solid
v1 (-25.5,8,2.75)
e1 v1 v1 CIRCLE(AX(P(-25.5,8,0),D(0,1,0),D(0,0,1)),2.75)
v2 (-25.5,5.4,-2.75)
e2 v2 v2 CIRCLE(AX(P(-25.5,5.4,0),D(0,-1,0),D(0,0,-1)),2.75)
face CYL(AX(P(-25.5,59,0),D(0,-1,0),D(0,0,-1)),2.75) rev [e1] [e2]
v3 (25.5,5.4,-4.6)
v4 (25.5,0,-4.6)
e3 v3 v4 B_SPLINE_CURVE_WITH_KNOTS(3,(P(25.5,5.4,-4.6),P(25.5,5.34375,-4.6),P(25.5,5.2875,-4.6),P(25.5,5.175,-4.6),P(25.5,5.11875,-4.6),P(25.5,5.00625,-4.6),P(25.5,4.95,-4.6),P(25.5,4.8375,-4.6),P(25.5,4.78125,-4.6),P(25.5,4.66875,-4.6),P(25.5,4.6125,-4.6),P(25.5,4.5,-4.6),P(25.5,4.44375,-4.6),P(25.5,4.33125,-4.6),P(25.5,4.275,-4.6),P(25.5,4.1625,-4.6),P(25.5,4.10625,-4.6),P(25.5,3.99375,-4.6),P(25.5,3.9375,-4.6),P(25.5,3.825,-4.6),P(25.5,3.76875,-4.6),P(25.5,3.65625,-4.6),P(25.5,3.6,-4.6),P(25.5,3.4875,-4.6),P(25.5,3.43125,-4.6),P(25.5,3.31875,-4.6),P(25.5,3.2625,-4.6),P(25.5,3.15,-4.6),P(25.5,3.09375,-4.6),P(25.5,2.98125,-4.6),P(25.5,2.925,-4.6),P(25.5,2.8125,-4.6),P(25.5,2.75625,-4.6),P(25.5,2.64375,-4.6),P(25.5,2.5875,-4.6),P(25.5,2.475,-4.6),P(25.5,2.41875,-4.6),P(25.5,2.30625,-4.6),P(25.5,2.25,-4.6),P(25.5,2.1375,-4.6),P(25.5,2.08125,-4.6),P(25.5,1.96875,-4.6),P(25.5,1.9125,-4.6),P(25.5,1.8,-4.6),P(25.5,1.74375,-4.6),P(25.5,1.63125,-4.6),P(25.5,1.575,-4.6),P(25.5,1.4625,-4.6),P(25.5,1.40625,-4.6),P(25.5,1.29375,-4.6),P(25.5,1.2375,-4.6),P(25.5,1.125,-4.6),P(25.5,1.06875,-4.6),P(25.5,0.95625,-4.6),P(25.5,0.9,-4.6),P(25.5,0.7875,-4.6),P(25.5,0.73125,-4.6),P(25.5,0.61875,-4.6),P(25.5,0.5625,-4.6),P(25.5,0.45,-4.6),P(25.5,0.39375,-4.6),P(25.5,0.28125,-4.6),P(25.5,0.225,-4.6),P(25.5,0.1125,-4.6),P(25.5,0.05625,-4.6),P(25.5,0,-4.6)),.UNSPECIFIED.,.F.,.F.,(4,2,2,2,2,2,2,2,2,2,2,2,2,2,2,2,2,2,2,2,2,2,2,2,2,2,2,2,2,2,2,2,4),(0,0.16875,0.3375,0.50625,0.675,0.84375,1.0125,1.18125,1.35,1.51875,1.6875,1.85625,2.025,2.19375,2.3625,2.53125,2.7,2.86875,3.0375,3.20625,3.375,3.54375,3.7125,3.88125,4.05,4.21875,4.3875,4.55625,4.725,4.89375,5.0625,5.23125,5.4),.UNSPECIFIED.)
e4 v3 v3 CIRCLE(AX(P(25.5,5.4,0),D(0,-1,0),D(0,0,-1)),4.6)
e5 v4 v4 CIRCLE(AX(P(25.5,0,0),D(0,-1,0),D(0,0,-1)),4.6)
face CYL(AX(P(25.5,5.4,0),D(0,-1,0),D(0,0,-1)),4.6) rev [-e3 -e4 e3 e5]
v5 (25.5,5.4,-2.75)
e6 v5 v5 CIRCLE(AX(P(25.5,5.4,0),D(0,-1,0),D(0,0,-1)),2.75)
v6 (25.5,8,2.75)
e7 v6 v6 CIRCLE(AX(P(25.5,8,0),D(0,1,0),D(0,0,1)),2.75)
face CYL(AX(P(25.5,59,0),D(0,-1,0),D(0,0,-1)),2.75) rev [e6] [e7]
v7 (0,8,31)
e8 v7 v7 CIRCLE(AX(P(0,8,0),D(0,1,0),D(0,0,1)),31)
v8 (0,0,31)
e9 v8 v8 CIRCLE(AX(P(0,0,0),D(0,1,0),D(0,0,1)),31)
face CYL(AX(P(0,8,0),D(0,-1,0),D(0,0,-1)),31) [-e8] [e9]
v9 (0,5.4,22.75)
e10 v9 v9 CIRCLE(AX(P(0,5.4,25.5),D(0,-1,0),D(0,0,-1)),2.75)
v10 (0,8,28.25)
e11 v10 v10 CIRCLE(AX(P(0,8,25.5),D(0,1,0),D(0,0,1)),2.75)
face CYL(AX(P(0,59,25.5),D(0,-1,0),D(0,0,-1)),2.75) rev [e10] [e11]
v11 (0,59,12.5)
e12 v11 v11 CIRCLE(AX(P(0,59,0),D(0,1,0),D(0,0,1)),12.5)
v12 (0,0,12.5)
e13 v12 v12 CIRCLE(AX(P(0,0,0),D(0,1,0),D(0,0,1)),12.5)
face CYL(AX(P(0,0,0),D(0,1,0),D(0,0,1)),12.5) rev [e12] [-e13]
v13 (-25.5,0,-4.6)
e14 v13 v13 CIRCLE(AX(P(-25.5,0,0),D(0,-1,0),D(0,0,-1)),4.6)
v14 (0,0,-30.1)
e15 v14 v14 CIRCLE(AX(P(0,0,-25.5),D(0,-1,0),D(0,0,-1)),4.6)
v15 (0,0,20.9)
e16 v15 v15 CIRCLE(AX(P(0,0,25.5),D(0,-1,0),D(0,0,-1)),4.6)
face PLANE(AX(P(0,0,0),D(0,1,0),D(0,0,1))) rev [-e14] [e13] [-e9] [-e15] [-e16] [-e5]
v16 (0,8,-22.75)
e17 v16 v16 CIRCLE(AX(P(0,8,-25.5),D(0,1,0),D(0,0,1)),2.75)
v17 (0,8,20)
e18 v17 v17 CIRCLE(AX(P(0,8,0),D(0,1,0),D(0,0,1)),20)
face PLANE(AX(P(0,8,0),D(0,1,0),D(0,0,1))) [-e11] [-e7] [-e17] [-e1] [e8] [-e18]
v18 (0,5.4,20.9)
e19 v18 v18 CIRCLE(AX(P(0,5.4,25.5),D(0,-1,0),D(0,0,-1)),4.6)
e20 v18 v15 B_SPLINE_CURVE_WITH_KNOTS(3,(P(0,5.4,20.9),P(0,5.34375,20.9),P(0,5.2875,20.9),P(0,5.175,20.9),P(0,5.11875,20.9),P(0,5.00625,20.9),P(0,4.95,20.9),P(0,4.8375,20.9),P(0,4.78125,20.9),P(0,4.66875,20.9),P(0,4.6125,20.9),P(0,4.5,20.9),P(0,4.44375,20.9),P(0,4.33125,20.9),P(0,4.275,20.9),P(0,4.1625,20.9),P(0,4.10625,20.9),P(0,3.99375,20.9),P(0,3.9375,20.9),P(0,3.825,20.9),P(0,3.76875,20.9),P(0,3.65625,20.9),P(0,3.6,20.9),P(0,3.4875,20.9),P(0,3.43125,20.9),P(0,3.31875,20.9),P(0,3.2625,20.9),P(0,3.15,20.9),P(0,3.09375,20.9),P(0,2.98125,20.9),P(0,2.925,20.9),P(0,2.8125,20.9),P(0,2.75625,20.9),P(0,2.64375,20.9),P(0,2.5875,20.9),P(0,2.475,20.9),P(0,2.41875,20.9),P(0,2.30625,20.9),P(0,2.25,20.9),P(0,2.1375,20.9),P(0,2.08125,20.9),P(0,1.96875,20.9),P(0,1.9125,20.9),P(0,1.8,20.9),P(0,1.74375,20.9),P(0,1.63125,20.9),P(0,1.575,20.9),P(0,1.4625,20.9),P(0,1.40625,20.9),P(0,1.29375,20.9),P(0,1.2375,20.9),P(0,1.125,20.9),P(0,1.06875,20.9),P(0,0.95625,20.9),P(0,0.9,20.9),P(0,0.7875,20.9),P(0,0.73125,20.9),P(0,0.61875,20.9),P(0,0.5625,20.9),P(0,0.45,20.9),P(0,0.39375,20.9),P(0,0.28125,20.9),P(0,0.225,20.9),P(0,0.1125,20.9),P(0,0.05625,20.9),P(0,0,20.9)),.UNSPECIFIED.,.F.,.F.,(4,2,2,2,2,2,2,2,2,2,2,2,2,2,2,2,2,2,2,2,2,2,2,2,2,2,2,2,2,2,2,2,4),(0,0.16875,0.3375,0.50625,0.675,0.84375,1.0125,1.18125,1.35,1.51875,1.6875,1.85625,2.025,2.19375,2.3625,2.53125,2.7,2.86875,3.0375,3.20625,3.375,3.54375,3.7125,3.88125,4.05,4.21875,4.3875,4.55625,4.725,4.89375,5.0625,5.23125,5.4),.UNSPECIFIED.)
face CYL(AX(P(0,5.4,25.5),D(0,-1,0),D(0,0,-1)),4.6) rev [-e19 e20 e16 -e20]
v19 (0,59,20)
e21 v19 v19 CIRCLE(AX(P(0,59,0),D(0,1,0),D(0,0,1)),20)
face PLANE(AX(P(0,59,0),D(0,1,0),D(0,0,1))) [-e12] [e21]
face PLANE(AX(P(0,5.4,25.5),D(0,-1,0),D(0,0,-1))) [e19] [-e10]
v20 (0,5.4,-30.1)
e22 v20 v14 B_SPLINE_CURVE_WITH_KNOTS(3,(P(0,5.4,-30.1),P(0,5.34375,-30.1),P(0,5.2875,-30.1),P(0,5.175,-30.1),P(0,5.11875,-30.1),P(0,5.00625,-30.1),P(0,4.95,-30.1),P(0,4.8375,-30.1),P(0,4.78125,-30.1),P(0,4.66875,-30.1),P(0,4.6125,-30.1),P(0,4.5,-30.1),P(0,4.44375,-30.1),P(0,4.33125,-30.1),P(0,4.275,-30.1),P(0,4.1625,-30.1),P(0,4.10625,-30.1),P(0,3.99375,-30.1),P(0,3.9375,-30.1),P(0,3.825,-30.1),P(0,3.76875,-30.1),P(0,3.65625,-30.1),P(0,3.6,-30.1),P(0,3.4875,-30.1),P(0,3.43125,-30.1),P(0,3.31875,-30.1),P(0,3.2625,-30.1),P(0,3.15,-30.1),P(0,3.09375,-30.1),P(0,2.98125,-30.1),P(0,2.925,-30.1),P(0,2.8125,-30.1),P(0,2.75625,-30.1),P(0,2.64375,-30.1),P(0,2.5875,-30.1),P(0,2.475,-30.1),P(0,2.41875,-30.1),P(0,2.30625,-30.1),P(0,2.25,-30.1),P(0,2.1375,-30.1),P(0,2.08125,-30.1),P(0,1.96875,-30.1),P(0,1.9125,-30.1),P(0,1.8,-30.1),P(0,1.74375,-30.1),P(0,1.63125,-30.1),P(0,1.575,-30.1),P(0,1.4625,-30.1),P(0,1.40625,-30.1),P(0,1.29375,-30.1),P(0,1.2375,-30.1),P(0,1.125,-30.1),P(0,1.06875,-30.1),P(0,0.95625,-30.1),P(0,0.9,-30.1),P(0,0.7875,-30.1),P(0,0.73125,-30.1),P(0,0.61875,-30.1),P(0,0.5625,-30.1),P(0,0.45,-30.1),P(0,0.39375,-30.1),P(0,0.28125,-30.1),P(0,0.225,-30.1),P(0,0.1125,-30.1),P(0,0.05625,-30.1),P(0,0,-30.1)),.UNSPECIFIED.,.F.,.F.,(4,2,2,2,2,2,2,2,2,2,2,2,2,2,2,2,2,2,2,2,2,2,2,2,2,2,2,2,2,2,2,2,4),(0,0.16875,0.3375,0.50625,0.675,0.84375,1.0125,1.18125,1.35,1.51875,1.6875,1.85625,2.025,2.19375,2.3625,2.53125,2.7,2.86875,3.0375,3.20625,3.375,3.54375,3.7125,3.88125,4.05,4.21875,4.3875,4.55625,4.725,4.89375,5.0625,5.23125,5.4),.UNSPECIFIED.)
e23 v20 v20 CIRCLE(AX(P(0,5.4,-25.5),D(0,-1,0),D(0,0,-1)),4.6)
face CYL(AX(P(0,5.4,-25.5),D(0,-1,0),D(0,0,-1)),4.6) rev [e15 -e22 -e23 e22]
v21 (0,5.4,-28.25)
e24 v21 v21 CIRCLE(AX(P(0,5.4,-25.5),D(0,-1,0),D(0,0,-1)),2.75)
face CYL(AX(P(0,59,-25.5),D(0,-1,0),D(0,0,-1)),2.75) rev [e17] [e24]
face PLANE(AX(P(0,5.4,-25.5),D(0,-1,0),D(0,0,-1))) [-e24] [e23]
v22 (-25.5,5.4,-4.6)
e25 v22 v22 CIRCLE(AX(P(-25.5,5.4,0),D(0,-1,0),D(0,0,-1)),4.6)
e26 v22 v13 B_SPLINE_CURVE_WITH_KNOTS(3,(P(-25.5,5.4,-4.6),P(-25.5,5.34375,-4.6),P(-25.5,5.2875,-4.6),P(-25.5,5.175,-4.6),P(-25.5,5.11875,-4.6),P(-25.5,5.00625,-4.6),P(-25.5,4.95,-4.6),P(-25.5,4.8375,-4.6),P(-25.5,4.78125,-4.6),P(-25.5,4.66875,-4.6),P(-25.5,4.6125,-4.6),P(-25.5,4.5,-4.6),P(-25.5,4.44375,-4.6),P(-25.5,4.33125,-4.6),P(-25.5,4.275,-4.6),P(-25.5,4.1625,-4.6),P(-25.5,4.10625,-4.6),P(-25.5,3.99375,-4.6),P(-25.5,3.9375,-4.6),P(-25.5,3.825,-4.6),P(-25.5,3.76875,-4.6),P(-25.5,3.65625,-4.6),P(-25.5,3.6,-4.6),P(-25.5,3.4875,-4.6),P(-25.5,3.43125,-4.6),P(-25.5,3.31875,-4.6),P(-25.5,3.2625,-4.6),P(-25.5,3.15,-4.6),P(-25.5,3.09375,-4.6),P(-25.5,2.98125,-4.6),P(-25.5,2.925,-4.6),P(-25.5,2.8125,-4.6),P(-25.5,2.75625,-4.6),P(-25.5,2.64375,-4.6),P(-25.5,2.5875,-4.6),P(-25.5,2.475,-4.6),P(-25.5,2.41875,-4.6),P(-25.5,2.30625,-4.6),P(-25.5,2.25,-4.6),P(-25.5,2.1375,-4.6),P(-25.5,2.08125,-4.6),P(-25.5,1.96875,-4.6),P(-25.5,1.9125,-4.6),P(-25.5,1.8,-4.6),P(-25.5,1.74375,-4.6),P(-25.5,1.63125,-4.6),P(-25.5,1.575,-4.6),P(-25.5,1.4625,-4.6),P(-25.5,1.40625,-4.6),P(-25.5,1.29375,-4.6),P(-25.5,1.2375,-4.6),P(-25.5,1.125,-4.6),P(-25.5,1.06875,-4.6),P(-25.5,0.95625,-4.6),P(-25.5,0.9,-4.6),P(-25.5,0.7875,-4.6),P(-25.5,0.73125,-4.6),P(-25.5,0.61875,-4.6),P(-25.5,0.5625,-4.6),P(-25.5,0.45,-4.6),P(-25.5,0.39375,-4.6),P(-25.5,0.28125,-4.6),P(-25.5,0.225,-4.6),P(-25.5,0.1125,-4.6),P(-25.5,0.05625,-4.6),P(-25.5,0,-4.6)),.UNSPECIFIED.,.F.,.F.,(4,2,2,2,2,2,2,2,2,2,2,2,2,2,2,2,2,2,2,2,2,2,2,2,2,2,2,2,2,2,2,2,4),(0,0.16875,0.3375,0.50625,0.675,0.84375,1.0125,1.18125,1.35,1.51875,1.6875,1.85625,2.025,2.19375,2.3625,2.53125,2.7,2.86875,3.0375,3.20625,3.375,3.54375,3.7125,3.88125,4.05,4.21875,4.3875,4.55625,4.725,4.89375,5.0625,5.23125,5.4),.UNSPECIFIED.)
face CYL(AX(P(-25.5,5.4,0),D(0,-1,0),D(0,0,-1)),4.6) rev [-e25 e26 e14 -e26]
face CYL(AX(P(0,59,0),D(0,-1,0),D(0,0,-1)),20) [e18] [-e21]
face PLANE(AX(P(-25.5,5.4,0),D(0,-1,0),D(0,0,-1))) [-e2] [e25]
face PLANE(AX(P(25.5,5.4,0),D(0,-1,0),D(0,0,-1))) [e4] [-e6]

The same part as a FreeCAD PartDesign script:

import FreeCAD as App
import Part
import Sketcher
Q = App.Units.Quantity

doc = App.newDocument("Part")
body = doc.addObject("PartDesign::Body", "Body")

sketch1 = doc.addObject("Sketcher::SketchObject", "Sketch")
body.addObject(sketch1)
sketch1.AttachmentSupport = (doc.XZ_Plane, [""])
sketch1.MapMode = "FlatFace"
sketch1.addGeometry(Part.Circle(App.Vector(0, 0, 0), App.Vector(0, 0, 1), 31), False)
sketch1.addConstraint([
    Sketcher.Constraint("Coincident", 0, 3, -1, 1),
    Sketcher.Constraint("Diameter", 0, Q("62 mm")),
])
pad1 = doc.addObject("PartDesign::Pad", "Pad")
body.addObject(pad1)
pad1.Profile = sketch1
pad1.Length = 8
pad1.Reversed = True

sketch2 = doc.addObject("Sketcher::SketchObject", "Sketch001")
body.addObject(sketch2)
sketch2.AttachmentSupport = (doc.XZ_Plane, [""])
sketch2.MapMode = "FlatFace"
sketch2.AttachmentOffset = App.Placement(App.Vector(0, 0, -8), App.Rotation())
sketch2.addGeometry(Part.Circle(App.Vector(0, 0, 0), App.Vector(0, 0, 1), 20), False)
sketch2.addConstraint([
    Sketcher.Constraint("Coincident", 0, 3, -1, 1),
    Sketcher.Constraint("Diameter", 0, Q("40 mm")),
])
pad2 = doc.addObject("PartDesign::Pad", "Pad001")
body.addObject(pad2)
pad2.Profile = sketch2
pad2.Length = 51
pad2.Reversed = True

sketch3 = doc.addObject("Sketcher::SketchObject", "Sketch002")
body.addObject(sketch3)
sketch3.AttachmentSupport = (doc.XZ_Plane, [""])
sketch3.MapMode = "FlatFace"
sketch3.AttachmentOffset = App.Placement(App.Vector(0, 0, -59), App.Rotation())
sketch3.addGeometry(Part.Circle(App.Vector(0, 0, 0), App.Vector(0, 0, 1), 12.5), False)
sketch3.addConstraint([
    Sketcher.Constraint("Coincident", 0, 3, -1, 1),
    Sketcher.Constraint("Diameter", 0, Q("25 mm")),
])
pocket1 = doc.addObject("PartDesign::Pocket", "Pocket")
body.addObject(pocket1)
pocket1.Profile = sketch3
pocket1.Type = "ThroughAll"
pocket1.Reversed = True

sketch4 = doc.addObject("Sketcher::SketchObject", "Sketch003")
body.addObject(sketch4)
sketch4.AttachmentSupport = (doc.XZ_Plane, [""])
sketch4.MapMode = "FlatFace"
sketch4.addGeometry([
    Part.Circle(App.Vector(0, -25.5, 0), App.Vector(0, 0, 1), 4.6),
    Part.Circle(App.Vector(-25.5, 0, 0), App.Vector(0, 0, 1), 4.6),
    Part.Circle(App.Vector(0, 25.5, 0), App.Vector(0, 0, 1), 4.6),
    Part.Circle(App.Vector(25.5, 0, 0), App.Vector(0, 0, 1), 4.6),
], False)
sketch4.addConstraint([
    Sketcher.Constraint("Equal", 0, 1),
    Sketcher.Constraint("Equal", 1, 2),
    Sketcher.Constraint("Equal", 2, 3),
    Sketcher.Constraint("Symmetric", 0, 3, 2, 3, -1, 1),
    Sketcher.Constraint("Symmetric", 1, 3, 3, 3, -1, 1),
    Sketcher.Constraint("PointOnObject", 0, 3, -2),
    Sketcher.Constraint("PointOnObject", 1, 3, -1),
    Sketcher.Constraint("Diameter", 0, Q("9.2 mm")),
    Sketcher.Constraint("DistanceY", 0, 3, 2, 3, Q("51 mm")),
    Sketcher.Constraint("DistanceX", 1, 3, 3, 3, Q("51 mm")),
])
pocket2 = doc.addObject("PartDesign::Pocket", "Pocket001")
body.addObject(pocket2)
pocket2.Profile = sketch4
pocket2.Length = 5.4

sketch5 = doc.addObject("Sketcher::SketchObject", "Sketch004")
body.addObject(sketch5)
sketch5.AttachmentSupport = (doc.XZ_Plane, [""])
sketch5.MapMode = "FlatFace"
sketch5.AttachmentOffset = App.Placement(App.Vector(0, 0, -5.4), App.Rotation())
sketch5.addGeometry([
    Part.Circle(App.Vector(25.5, 0, 0), App.Vector(0, 0, 1), 2.75),
    Part.Circle(App.Vector(0, -25.5, 0), App.Vector(0, 0, 1), 2.75),
    Part.Circle(App.Vector(-25.5, 0, 0), App.Vector(0, 0, 1), 2.75),
    Part.Circle(App.Vector(0, 25.5, 0), App.Vector(0, 0, 1), 2.75),
], False)
sketch5.addConstraint([
    Sketcher.Constraint("Equal", 0, 1),
    Sketcher.Constraint("Equal", 1, 2),
    Sketcher.Constraint("Equal", 2, 3),
    Sketcher.Constraint("Symmetric", 0, 3, 2, 3, -1, 1),
    Sketcher.Constraint("Symmetric", 1, 3, 3, 3, -1, 1),
    Sketcher.Constraint("PointOnObject", 0, 3, -1),
    Sketcher.Constraint("PointOnObject", 1, 3, -2),
    Sketcher.Constraint("Diameter", 0, Q("5.5 mm")),
    Sketcher.Constraint("DistanceX", 2, 3, 0, 3, Q("51 mm")),
    Sketcher.Constraint("DistanceY", 1, 3, 3, 3, Q("51 mm")),
])
pocket3 = doc.addObject("PartDesign::Pocket", "Pocket002")
body.addObject(pocket3)
pocket3.Profile = sketch5
pocket3.Type = "ThroughAll"

doc.recompute()
